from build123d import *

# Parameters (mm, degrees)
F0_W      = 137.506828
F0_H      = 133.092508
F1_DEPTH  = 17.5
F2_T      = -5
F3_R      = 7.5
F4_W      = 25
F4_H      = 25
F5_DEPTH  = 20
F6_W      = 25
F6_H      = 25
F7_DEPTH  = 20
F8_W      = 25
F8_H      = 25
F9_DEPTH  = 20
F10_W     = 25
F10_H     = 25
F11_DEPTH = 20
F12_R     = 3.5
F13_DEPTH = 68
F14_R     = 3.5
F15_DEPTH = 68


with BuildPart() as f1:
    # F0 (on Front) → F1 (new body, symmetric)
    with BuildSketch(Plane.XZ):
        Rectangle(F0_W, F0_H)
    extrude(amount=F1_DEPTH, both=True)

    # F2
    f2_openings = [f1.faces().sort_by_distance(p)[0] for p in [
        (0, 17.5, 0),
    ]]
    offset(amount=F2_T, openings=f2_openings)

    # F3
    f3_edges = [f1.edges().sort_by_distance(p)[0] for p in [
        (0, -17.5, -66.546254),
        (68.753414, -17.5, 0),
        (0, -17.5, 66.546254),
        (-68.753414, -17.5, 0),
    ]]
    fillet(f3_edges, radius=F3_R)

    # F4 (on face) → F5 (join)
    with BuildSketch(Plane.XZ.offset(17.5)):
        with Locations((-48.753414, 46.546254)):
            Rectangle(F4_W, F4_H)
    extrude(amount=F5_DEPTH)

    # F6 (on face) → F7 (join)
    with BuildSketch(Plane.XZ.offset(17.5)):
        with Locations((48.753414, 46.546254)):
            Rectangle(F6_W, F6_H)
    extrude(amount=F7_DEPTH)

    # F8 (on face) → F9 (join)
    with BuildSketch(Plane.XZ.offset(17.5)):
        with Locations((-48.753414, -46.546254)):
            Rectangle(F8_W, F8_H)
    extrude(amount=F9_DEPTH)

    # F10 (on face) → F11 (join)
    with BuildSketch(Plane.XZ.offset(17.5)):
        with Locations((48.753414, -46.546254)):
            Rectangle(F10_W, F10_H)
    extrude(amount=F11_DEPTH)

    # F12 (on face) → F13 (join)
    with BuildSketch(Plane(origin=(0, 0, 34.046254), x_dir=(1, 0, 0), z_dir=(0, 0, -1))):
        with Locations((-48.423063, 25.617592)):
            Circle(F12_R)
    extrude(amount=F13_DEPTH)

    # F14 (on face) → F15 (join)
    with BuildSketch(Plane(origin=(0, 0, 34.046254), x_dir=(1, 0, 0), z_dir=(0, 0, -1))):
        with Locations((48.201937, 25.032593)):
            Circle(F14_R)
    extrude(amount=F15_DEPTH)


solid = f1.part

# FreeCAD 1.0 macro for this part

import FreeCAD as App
import Part
import Sketcher
Q = App.Units.Quantity


def edges_at(feature, points):
    """Names of the edges that pass closest to the given points."""
    edges = feature.Shape.Edges
    near = lambda p: min(range(len(edges)), key=lambda i: edges[i].distToShape(Part.Vertex(*p))[0])
    return sorted({f"Edge{near(p) + 1}" for p in points})


def faces_at(feature, points):
    """Names of the faces that lie closest to the given points."""
    faces = feature.Shape.Faces
    near = lambda p: min(range(len(faces)), key=lambda i: faces[i].distToShape(Part.Vertex(*p))[0])
    return sorted({f"Face{near(p) + 1}" for p in points})


def add_polygon(sketch, points):
    """Adds a closed chain of lines whose ends are joined by coincident constraints."""
    first, n = sketch.GeometryCount, len(points)
    for a, b in zip(points, points[1:] + points[:1]):
        sketch.addGeometry(Part.LineSegment(App.Vector(*a, 0), App.Vector(*b, 0)), False)
    for i in range(n):
        sketch.addConstraint(Sketcher.Constraint("Coincident", first + i, 2, first + (i + 1) % n, 1))

doc = App.newDocument("Part")
body = doc.addObject("PartDesign::Body", "Body")

sketch1 = doc.addObject("Sketcher::SketchObject", "Sketch")
body.addObject(sketch1)
sketch1.AttachmentSupport = (doc.XZ_Plane, [""])
sketch1.MapMode = "FlatFace"
add_polygon(sketch1, [(-69, 67), (-69, -67), (69, -67), (69, 67)])
sketch1.addConstraint([
    Sketcher.Constraint("Vertical", 0),
    Sketcher.Constraint("Horizontal", 1),
    Sketcher.Constraint("Vertical", 2),
    Sketcher.Constraint("Horizontal", 3),
    Sketcher.Constraint("Symmetric", 0, 2, 2, 2, -1, 1),
    Sketcher.Constraint("DistanceX", 1, 1, 1, 2, Q("137.506828 mm")),
    Sketcher.Constraint("DistanceY", 0, 2, 0, 1, Q("133.092508 mm")),
])
pad1 = doc.addObject("PartDesign::Pad", "Pad")
body.addObject(pad1)
pad1.Profile = sketch1
pad1.Length = 35
pad1.Midplane = True
doc.recompute()

thickness = doc.addObject("PartDesign::Thickness", "Thickness")
body.addObject(thickness)
thickness.Base = (pad1, faces_at(pad1, [(0, 17.5, 0)]))
thickness.Value = 5
thickness.Reversed = True
thickness.Join = "Arc"
doc.recompute()

fillet = doc.addObject("PartDesign::Fillet", "Fillet")
body.addObject(fillet)
fillet.Base = (thickness, edges_at(thickness, [
    (0, -17.5, -66.546),
    (68.753, -17.5, 0),
    (0, -17.5, 66.546),
    (-68.753, -17.5, 0),
]))
fillet.Radius = 7.5

sketch2 = doc.addObject("Sketcher::SketchObject", "Sketch001")
body.addObject(sketch2)
sketch2.AttachmentSupport = (doc.XZ_Plane, [""])
sketch2.MapMode = "FlatFace"
sketch2.AttachmentOffset = App.Placement(App.Vector(0, 0, 17.5), App.Rotation())
add_polygon(sketch2, [(-61, 59), (-61, 34), (-36, 34), (-36, 59)])
sketch2.addConstraint([
    Sketcher.Constraint("Vertical", 0),
    Sketcher.Constraint("Horizontal", 1),
    Sketcher.Constraint("Vertical", 2),
    Sketcher.Constraint("Horizontal", 3),
    Sketcher.Constraint("Equal", 3, 0),
    Sketcher.Constraint("DistanceX", 1, 1, 1, 2, Q("25 mm")),
    Sketcher.Constraint("DistanceX", 0, 2, -1, 1, Q("61.253414 mm")),
    Sketcher.Constraint("DistanceY", -1, 1, 0, 2, Q("34.046254 mm")),
])
pad2 = doc.addObject("PartDesign::Pad", "Pad001")
body.addObject(pad2)
pad2.Profile = sketch2
pad2.Length = 20

sketch3 = doc.addObject("Sketcher::SketchObject", "Sketch002")
body.addObject(sketch3)
sketch3.AttachmentSupport = (doc.XZ_Plane, [""])
sketch3.MapMode = "FlatFace"
sketch3.AttachmentOffset = App.Placement(App.Vector(0, 0, 17.5), App.Rotation())
add_polygon(sketch3, [(36, 59), (36, 34), (61, 34), (61, 59)])
sketch3.addConstraint([
    Sketcher.Constraint("Vertical", 0),
    Sketcher.Constraint("Horizontal", 1),
    Sketcher.Constraint("Vertical", 2),
    Sketcher.Constraint("Horizontal", 3),
    Sketcher.Constraint("Equal", 3, 0),
    Sketcher.Constraint("DistanceX", 1, 1, 1, 2, Q("25 mm")),
    Sketcher.Constraint("DistanceX", -1, 1, 0, 2, Q("36.253414 mm")),
    Sketcher.Constraint("DistanceY", -1, 1, 0, 2, Q("34.046254 mm")),
])
pad3 = doc.addObject("PartDesign::Pad", "Pad002")
body.addObject(pad3)
pad3.Profile = sketch3
pad3.Length = 20

sketch4 = doc.addObject("Sketcher::SketchObject", "Sketch003")
body.addObject(sketch4)
sketch4.AttachmentSupport = (doc.XZ_Plane, [""])
sketch4.MapMode = "FlatFace"
sketch4.AttachmentOffset = App.Placement(App.Vector(0, 0, 17.5), App.Rotation())
add_polygon(sketch4, [(-61, -34), (-61, -59), (-36, -59), (-36, -34)])
sketch4.addConstraint([
    Sketcher.Constraint("Vertical", 0),
    Sketcher.Constraint("Horizontal", 1),
    Sketcher.Constraint("Vertical", 2),
    Sketcher.Constraint("Horizontal", 3),
    Sketcher.Constraint("Equal", 3, 0),
    Sketcher.Constraint("DistanceX", 1, 1, 1, 2, Q("25 mm")),
    Sketcher.Constraint("DistanceX", 0, 2, -1, 1, Q("61.253414 mm")),
    Sketcher.Constraint("DistanceY", 0, 2, -1, 1, Q("59.046254 mm")),
])
pad4 = doc.addObject("PartDesign::Pad", "Pad003")
body.addObject(pad4)
pad4.Profile = sketch4
pad4.Length = 20

sketch5 = doc.addObject("Sketcher::SketchObject", "Sketch004")
body.addObject(sketch5)
sketch5.AttachmentSupport = (doc.XZ_Plane, [""])
sketch5.MapMode = "FlatFace"
sketch5.AttachmentOffset = App.Placement(App.Vector(0, 0, 17.5), App.Rotation())
add_polygon(sketch5, [(36, -34), (36, -59), (61, -59), (61, -34)])
sketch5.addConstraint([
    Sketcher.Constraint("Vertical", 0),
    Sketcher.Constraint("Horizontal", 1),
    Sketcher.Constraint("Vertical", 2),
    Sketcher.Constraint("Horizontal", 3),
    Sketcher.Constraint("Equal", 3, 0),
    Sketcher.Constraint("DistanceX", 1, 1, 1, 2, Q("25 mm")),
    Sketcher.Constraint("DistanceX", -1, 1, 0, 2, Q("36.253414 mm")),
    Sketcher.Constraint("DistanceY", 0, 2, -1, 1, Q("59.046254 mm")),
])
pad5 = doc.addObject("PartDesign::Pad", "Pad004")
body.addObject(pad5)
pad5.Profile = sketch5
pad5.Length = 20

sketch6 = doc.addObject("Sketcher::SketchObject", "Sketch005")
body.addObject(sketch6)
sketch6.AttachmentSupport = (doc.XY_Plane, [""])
sketch6.MapMode = "FlatFace"
sketch6.AttachmentOffset = App.Placement(App.Vector(0, 0, 34.046254), App.Rotation())
sketch6.addGeometry(Part.Circle(App.Vector(-48.4, -25.6, 0), App.Vector(0, 0, 1), 3.5), False)
sketch6.addConstraint([
    Sketcher.Constraint("Diameter", 0, Q("7 mm")),
    Sketcher.Constraint("DistanceY", 0, 3, -1, 1, Q("25.617592 mm")),
    Sketcher.Constraint("DistanceX", 0, 3, -1, 1, Q("48.423063 mm")),
])
pad6 = doc.addObject("PartDesign::Pad", "Pad005")
body.addObject(pad6)
pad6.Profile = sketch6
pad6.Length = 68
pad6.Reversed = True

sketch7 = doc.addObject("Sketcher::SketchObject", "Sketch006")
body.addObject(sketch7)
sketch7.AttachmentSupport = (doc.XY_Plane, [""])
sketch7.MapMode = "FlatFace"
sketch7.AttachmentOffset = App.Placement(App.Vector(0, 0, 34.046254), App.Rotation())
sketch7.addGeometry(Part.Circle(App.Vector(48.2, -25, 0), App.Vector(0, 0, 1), 3.5), False)
sketch7.addConstraint([
    Sketcher.Constraint("Diameter", 0, Q("7 mm")),
    Sketcher.Constraint("DistanceX", -1, 1, 0, 3, Q("48.201937 mm")),
    Sketcher.Constraint("DistanceY", 0, 3, -1, 1, Q("25.032593 mm")),
])
pad7 = doc.addObject("PartDesign::Pad", "Pad006")
body.addObject(pad7)
pad7.Profile = sketch7
pad7.Length = 68
pad7.Reversed = True

doc.recompute()
